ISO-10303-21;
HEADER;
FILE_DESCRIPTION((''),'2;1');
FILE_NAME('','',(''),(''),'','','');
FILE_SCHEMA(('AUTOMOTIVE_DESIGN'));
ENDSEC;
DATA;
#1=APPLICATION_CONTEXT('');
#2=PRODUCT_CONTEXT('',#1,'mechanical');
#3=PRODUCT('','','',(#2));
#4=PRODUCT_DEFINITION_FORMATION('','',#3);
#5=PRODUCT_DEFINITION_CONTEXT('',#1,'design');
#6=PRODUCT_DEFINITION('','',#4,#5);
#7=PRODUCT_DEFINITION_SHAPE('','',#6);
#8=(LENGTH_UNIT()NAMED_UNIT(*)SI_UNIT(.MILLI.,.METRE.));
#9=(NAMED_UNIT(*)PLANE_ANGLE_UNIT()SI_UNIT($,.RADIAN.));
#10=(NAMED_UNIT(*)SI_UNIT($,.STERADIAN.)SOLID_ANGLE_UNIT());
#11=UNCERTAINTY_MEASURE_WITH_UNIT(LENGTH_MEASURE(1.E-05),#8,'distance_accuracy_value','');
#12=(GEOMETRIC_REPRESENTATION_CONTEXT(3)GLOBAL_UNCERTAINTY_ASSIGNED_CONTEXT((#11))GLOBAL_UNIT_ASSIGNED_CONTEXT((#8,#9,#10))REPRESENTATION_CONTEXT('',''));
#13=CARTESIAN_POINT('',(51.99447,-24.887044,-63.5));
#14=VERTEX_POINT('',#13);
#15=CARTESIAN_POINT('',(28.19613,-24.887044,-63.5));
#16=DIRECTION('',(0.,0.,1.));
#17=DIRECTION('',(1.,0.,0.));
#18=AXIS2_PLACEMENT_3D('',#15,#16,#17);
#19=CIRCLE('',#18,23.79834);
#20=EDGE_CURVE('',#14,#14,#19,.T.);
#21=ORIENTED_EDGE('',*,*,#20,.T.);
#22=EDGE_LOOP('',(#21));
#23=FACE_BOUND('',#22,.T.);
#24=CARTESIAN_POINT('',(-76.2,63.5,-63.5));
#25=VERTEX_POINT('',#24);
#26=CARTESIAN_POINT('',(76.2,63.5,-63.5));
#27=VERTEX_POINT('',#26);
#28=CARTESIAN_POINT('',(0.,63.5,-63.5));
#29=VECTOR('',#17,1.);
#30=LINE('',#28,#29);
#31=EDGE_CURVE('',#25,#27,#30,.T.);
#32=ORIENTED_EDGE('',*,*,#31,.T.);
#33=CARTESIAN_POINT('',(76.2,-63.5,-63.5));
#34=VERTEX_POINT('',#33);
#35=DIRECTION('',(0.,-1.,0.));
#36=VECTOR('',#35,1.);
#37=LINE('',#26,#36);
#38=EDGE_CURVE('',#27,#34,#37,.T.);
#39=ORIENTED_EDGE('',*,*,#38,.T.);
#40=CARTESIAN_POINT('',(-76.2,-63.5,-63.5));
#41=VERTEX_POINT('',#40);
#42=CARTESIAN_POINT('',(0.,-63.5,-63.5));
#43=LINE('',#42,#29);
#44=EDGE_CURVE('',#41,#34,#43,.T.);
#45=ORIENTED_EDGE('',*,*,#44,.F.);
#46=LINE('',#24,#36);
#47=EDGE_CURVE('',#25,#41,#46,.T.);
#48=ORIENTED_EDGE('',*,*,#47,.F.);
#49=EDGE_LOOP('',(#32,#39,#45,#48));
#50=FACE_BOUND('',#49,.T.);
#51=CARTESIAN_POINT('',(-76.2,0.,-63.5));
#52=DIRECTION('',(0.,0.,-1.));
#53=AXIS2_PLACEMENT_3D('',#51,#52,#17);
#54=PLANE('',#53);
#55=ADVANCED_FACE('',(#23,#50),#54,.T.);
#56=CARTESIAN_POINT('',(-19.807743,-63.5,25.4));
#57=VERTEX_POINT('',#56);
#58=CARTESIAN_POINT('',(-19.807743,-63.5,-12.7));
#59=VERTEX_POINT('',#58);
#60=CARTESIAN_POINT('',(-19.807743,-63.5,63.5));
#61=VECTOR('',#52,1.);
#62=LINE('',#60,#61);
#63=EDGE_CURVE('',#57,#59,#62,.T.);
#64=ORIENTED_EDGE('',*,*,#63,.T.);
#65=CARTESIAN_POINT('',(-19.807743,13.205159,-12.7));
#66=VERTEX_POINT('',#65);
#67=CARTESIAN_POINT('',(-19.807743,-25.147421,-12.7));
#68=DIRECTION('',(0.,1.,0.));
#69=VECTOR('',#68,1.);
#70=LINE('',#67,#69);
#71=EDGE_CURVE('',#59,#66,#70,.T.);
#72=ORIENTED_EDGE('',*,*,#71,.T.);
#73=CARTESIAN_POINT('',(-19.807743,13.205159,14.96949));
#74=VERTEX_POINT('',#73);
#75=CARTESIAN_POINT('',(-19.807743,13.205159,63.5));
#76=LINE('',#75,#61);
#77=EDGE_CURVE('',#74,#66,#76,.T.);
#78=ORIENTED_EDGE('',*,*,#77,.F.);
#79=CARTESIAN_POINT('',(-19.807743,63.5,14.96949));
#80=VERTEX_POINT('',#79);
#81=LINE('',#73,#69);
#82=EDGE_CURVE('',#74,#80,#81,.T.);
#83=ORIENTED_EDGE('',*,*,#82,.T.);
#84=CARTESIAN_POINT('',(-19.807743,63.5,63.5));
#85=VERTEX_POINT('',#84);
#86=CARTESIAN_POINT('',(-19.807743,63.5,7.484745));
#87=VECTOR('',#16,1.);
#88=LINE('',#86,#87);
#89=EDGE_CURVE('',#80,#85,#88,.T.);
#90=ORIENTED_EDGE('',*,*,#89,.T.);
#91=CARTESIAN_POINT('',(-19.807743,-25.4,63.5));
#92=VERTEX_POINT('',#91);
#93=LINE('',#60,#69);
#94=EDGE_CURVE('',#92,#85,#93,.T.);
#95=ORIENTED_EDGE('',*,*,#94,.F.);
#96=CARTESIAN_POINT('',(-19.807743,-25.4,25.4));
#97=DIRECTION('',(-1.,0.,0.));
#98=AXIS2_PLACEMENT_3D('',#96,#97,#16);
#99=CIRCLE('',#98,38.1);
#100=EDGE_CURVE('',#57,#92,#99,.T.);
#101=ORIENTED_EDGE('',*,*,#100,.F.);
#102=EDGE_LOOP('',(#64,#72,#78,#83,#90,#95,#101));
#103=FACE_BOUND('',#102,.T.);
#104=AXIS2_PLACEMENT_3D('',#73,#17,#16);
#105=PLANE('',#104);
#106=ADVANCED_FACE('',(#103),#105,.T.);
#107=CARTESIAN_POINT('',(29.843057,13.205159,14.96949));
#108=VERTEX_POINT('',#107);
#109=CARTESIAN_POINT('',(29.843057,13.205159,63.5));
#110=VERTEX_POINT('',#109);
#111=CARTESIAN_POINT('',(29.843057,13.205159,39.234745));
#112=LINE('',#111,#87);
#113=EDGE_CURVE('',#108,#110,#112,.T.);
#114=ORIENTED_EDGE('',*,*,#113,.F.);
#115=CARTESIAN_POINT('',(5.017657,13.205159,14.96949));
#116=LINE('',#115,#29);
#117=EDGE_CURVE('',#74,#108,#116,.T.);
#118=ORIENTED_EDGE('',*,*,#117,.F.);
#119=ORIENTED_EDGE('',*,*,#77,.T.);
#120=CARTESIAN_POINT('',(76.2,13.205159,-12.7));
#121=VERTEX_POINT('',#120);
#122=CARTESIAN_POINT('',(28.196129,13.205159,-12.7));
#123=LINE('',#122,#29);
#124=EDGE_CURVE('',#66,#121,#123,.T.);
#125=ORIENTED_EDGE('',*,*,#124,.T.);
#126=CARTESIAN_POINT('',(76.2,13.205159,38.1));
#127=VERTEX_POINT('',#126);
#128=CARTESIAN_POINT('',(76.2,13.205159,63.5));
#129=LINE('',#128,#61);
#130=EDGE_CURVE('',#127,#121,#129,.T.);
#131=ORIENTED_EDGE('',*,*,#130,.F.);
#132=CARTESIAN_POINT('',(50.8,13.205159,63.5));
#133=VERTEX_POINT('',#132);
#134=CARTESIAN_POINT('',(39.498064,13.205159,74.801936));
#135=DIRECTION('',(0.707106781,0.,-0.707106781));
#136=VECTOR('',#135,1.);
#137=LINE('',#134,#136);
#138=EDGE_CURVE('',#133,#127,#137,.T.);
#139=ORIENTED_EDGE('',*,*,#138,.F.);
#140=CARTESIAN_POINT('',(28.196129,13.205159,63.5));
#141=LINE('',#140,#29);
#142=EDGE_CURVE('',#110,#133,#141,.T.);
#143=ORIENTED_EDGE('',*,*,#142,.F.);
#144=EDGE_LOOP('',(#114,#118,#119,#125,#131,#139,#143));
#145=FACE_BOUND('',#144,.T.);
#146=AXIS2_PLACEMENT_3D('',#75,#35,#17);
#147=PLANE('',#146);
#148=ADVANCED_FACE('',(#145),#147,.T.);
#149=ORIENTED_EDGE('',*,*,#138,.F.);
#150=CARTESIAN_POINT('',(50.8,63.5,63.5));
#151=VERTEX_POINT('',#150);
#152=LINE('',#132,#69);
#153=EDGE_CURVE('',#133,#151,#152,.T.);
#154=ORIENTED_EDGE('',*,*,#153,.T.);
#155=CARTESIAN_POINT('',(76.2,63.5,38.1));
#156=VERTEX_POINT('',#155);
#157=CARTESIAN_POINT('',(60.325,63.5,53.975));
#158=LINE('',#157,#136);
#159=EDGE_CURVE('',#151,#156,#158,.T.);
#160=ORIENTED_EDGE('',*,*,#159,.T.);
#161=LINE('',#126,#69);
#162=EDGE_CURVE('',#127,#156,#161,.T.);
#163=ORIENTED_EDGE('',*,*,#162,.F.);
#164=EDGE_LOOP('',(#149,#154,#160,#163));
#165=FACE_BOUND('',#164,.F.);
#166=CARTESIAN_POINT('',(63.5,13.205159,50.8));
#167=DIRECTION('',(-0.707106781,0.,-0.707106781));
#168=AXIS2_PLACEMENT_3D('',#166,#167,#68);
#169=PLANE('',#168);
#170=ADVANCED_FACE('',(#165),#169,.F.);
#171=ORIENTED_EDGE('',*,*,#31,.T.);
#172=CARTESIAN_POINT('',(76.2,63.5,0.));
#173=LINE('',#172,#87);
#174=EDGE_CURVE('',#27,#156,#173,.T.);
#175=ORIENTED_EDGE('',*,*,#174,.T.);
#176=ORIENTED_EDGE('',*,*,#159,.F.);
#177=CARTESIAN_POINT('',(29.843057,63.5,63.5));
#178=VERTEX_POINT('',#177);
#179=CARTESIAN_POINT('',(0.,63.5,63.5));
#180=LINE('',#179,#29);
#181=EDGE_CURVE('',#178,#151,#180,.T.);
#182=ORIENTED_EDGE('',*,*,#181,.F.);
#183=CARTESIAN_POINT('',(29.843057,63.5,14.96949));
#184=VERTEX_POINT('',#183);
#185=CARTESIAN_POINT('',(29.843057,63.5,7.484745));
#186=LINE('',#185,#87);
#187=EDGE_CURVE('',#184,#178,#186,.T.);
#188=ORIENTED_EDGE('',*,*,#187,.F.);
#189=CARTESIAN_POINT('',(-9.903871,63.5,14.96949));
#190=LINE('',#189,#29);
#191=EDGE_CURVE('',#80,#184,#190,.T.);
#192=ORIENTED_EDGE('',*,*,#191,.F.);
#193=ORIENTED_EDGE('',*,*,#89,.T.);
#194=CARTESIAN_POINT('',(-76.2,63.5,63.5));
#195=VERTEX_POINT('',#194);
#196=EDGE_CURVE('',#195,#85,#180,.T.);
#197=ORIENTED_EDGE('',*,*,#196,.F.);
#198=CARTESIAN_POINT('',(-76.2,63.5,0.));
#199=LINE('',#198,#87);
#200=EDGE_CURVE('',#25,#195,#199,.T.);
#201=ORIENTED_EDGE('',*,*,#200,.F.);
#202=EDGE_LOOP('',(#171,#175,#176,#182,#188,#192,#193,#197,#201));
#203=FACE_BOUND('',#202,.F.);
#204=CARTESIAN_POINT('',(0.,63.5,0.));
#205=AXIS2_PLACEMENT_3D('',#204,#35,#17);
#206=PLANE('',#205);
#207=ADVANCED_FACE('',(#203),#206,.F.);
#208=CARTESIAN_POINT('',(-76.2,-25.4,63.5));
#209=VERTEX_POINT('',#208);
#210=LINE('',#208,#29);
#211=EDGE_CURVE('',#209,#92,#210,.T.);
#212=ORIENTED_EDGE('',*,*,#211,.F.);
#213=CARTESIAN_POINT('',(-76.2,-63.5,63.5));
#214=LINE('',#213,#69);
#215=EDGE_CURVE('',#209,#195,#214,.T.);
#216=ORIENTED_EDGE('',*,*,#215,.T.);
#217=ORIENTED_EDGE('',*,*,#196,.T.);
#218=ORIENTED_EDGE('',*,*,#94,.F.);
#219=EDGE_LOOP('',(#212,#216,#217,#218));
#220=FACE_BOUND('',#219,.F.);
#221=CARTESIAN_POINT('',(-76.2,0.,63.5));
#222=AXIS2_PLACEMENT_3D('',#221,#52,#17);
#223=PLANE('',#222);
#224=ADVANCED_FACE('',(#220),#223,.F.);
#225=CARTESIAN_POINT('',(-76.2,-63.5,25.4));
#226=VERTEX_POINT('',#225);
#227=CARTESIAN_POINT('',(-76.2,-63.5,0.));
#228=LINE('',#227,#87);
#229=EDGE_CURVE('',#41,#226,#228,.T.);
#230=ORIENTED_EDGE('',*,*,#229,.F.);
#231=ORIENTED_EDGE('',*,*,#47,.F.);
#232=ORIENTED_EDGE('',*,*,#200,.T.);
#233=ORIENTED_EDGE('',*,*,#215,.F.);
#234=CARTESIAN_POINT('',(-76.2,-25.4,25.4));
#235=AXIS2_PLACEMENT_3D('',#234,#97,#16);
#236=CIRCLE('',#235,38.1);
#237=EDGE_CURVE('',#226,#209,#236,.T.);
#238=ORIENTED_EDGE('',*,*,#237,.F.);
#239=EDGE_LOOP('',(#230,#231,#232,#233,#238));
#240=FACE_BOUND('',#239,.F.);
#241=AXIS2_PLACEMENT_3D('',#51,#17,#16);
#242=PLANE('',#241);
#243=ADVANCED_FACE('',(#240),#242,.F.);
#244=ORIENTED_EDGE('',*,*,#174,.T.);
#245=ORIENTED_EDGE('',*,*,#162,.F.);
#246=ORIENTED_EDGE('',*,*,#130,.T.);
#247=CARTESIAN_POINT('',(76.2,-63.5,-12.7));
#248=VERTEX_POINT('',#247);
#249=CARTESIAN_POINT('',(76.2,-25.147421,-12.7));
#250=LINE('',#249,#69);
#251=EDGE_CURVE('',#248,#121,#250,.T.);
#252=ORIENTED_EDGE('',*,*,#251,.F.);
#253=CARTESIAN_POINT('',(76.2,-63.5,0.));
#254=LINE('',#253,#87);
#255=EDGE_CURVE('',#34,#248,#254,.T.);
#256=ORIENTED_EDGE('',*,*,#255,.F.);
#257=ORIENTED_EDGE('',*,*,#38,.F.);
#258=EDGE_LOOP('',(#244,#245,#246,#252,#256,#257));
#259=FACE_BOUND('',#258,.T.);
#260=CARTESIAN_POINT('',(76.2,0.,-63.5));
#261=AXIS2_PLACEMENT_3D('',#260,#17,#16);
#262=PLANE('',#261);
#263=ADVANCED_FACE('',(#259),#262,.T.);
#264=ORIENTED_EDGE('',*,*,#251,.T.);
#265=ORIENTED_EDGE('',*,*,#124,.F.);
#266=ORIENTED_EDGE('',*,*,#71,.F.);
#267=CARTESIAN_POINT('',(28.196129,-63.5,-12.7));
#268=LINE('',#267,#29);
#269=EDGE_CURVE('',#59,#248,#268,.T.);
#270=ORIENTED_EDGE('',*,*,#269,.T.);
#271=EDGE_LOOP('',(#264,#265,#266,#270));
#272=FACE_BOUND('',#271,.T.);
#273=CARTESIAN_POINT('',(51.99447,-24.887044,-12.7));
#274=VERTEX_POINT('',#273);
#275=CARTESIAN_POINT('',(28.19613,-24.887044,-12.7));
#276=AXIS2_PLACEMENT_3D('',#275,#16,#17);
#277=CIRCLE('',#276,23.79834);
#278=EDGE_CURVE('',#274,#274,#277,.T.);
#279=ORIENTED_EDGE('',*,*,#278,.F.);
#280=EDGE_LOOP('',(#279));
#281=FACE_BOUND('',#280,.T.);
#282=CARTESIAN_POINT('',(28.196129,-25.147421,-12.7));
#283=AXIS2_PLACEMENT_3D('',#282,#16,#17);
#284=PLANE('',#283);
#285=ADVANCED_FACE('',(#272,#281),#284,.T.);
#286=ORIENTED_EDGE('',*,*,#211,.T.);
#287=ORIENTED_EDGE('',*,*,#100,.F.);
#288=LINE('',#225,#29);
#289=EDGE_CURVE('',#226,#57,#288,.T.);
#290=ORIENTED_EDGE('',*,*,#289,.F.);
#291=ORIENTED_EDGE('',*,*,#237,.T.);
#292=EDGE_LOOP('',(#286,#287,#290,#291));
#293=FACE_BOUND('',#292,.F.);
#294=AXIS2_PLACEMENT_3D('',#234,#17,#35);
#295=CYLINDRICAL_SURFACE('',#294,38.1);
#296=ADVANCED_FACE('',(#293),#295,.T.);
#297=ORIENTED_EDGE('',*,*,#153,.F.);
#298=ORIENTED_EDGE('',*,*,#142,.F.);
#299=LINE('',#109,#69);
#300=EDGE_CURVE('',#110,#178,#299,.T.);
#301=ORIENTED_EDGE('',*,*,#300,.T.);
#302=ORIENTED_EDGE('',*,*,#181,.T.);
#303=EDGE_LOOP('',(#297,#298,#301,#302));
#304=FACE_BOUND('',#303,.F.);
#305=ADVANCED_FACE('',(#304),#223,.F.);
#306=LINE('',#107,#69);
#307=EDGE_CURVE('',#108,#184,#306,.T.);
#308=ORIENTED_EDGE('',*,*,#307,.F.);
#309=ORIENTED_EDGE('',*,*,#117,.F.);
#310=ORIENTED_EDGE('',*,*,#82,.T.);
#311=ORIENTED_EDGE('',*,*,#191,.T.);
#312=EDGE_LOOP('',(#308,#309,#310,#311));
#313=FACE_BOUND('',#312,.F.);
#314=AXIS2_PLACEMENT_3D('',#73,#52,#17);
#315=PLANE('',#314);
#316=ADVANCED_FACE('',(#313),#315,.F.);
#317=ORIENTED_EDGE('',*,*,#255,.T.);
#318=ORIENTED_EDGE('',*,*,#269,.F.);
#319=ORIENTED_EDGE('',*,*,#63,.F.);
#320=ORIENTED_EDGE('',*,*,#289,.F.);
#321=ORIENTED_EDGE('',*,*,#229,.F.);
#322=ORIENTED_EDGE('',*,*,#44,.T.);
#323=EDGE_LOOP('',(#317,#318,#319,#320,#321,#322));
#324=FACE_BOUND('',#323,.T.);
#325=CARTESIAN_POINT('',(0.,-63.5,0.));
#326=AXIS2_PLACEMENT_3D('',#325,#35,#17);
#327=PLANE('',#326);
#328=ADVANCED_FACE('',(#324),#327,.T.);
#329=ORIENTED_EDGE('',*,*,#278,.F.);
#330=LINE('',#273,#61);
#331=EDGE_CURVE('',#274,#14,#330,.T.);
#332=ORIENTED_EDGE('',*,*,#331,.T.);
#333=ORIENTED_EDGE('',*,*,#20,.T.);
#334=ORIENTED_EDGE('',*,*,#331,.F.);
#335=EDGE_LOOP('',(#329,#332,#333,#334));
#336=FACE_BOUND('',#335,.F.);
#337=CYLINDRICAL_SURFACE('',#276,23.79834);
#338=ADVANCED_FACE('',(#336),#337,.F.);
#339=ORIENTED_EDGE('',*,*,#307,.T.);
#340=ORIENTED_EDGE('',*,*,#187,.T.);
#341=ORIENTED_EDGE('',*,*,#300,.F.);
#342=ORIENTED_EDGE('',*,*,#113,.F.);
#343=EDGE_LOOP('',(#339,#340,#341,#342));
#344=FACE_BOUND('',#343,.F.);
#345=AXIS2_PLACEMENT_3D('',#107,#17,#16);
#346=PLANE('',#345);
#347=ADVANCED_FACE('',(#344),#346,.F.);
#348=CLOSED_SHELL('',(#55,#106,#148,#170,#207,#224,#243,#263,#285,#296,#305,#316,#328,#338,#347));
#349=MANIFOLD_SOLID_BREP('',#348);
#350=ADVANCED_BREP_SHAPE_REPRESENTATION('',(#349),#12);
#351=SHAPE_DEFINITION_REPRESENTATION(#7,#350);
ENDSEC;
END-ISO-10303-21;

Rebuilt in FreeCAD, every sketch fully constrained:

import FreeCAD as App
import Part
import Sketcher
Q = App.Units.Quantity


def edges_at(feature, points):
    """Names of the edges that pass closest to the given points."""
    edges = feature.Shape.Edges
    near = lambda p: min(range(len(edges)), key=lambda i: edges[i].distToShape(Part.Vertex(*p))[0])
    return sorted({f"Edge{near(p) + 1}" for p in points})

doc = App.newDocument("Part")
params = doc.addObject("Spreadsheet::Sheet", "Params")
for row, (alias, value) in enumerate([
    ("sketch1_width", "6 in"),
    ("sketch1_height", "5 in"),
    ("pad1_length", "5 in"),
    ("pocket1_length", "3 in"),
    ("pocket2_length", "2.96 in"),
    ("fillet_radius", "1.5 in"),
    ("chamfer_size", "1 in"),
    ("pocket3_length", "3.4 in"),
], start=1):
    params.set(f"A{row}", alias)
    params.set(f"B{row}", "=" + value)
    params.setAlias(f"B{row}", alias)

body = doc.addObject("PartDesign::Body", "Body")

# Sketch on XZ plane
sketch1 = body.newObject("Sketcher::SketchObject", "Sketch")
sketch1.AttachmentSupport = (doc.getObject("XZ_Plane"), [""])
sketch1.MapMode = "FlatFace"
sketch1.addGeometry(Part.LineSegment(App.Vector(-76, 64, 0), App.Vector(-76, -64, 0)), False)
sketch1.addGeometry(Part.LineSegment(App.Vector(-76, -64, 0), App.Vector(76, -64, 0)), False)
sketch1.addGeometry(Part.LineSegment(App.Vector(76, -64, 0), App.Vector(76, 64, 0)), False)
sketch1.addGeometry(Part.LineSegment(App.Vector(76, 64, 0), App.Vector(-76, 64, 0)), False)
sketch1.addConstraint(Sketcher.Constraint("Coincident", 0, 2, 1, 1))
sketch1.addConstraint(Sketcher.Constraint("Coincident", 1, 2, 2, 1))
sketch1.addConstraint(Sketcher.Constraint("Coincident", 2, 2, 3, 1))
sketch1.addConstraint(Sketcher.Constraint("Coincident", 3, 2, 0, 1))
sketch1.addConstraint(Sketcher.Constraint("Vertical", 0))
sketch1.addConstraint(Sketcher.Constraint("Horizontal", 1))
sketch1.addConstraint(Sketcher.Constraint("Vertical", 2))
sketch1.addConstraint(Sketcher.Constraint("Horizontal", 3))
sketch1.addConstraint(Sketcher.Constraint("Symmetric", 0, 2, 2, 2, -1, 1))
sketch1.addConstraint(Sketcher.Constraint("DistanceX", 1, 1, 1, 2, Q("6 in")))
sketch1.addConstraint(Sketcher.Constraint("DistanceY", 0, 2, 0, 1, Q("5 in")))
sketch1.setExpression("Constraints[9]", "Params.sketch1_width")
sketch1.setExpression("Constraints[10]", "Params.sketch1_height")
pad1 = body.newObject("PartDesign::Pad", "Pad")
pad1.Profile = sketch1
pad1.setExpression("Length", "Params.pad1_length")
pad1.Midplane = True

# Sketch on XY plane
sketch2 = body.newObject("Sketcher::SketchObject", "Sketch001")
sketch2.AttachmentSupport = (doc.getObject("XY_Plane"), [""])
sketch2.MapMode = "FlatFace"
sketch2.AttachmentOffset = App.Placement(App.Vector(0, 0, 2.5 * 25.4), App.Rotation())
sketch2.addGeometry(Part.LineSegment(App.Vector(-20, 13, 0), App.Vector(-20, -64, 0)), False)
sketch2.addGeometry(Part.LineSegment(App.Vector(-20, -64, 0), App.Vector(76, -64, 0)), False)
sketch2.addGeometry(Part.LineSegment(App.Vector(76, -64, 0), App.Vector(76, 13, 0)), False)
sketch2.addGeometry(Part.LineSegment(App.Vector(76, 13, 0), App.Vector(-20, 13, 0)), False)
sketch2.addConstraint(Sketcher.Constraint("Coincident", 0, 2, 1, 1))
sketch2.addConstraint(Sketcher.Constraint("Coincident", 1, 2, 2, 1))
sketch2.addConstraint(Sketcher.Constraint("Coincident", 2, 2, 3, 1))
sketch2.addConstraint(Sketcher.Constraint("Coincident", 3, 2, 0, 1))
sketch2.addConstraint(Sketcher.Constraint("Vertical", 0))
sketch2.addConstraint(Sketcher.Constraint("Horizontal", 1))
sketch2.addConstraint(Sketcher.Constraint("Vertical", 2))
sketch2.addConstraint(Sketcher.Constraint("Horizontal", 3))
sketch2.addConstraint(Sketcher.Constraint("DistanceX", -1, 1, 1, 2, Q("3 in")))
sketch2.addConstraint(Sketcher.Constraint("DistanceY", 0, 2, -1, 1, Q("2.5 in")))
sketch2.addConstraint(Sketcher.Constraint("DistanceY", 0, 2, 0, 1, 76.705159))
sketch2.addConstraint(Sketcher.Constraint("DistanceX", 1, 1, 1, 2, 96.007743))
pocket1 = body.newObject("PartDesign::Pocket", "Pocket")
pocket1.Profile = sketch2
pocket1.setExpression("Length", "Params.pocket1_length")

# Sketch on XZ plane
sketch3 = body.newObject("Sketcher::SketchObject", "Sketch002")
sketch3.AttachmentSupport = (doc.getObject("XZ_Plane"), [""])
sketch3.MapMode = "FlatFace"
sketch3.AttachmentOffset = App.Placement(App.Vector(0, 0, -13.205159), App.Rotation())
sketch3.addGeometry(Part.LineSegment(App.Vector(-20, 64, 0), App.Vector(-20, 15, 0)), False)
sketch3.addGeometry(Part.LineSegment(App.Vector(-20, 15, 0), App.Vector(30, 15, 0)), False)
sketch3.addGeometry(Part.LineSegment(App.Vector(30, 15, 0), App.Vector(30, 64, 0)), False)
sketch3.addGeometry(Part.LineSegment(App.Vector(30, 64, 0), App.Vector(-20, 64, 0)), False)
sketch3.addConstraint(Sketcher.Constraint("Coincident", 0, 2, 1, 1))
sketch3.addConstraint(Sketcher.Constraint("Coincident", 1, 2, 2, 1))
sketch3.addConstraint(Sketcher.Constraint("Coincident", 2, 2, 3, 1))
sketch3.addConstraint(Sketcher.Constraint("Coincident", 3, 2, 0, 1))
sketch3.addConstraint(Sketcher.Constraint("Vertical", 0))
sketch3.addConstraint(Sketcher.Constraint("Horizontal", 1))
sketch3.addConstraint(Sketcher.Constraint("Vertical", 2))
sketch3.addConstraint(Sketcher.Constraint("Horizontal", 3))
sketch3.addConstraint(Sketcher.Constraint("DistanceY", -1, 1, 2, 2, Q("2.5 in")))
sketch3.addConstraint(Sketcher.Constraint("DistanceX", 1, 1, 1, 2, 49.650799))
sketch3.addConstraint(Sketcher.Constraint("DistanceY", 0, 2, 0, 1, 48.53051))
sketch3.addConstraint(Sketcher.Constraint("DistanceX", 0, 2, -1, 1, 19.807743))
pocket2 = body.newObject("PartDesign::Pocket", "Pocket001")
pocket2.Profile = sketch3
pocket2.setExpression("Length", "Params.pocket2_length")
doc.recompute()

fillet = body.newObject("PartDesign::Fillet", "Fillet")
fillet.Base = (pocket2, edges_at(pocket2, [(-48.004, -63.5, 63.5)]))
fillet.setExpression("Radius", "Params.fillet_radius")
doc.recompute()

chamfer = body.newObject("PartDesign::Chamfer", "Chamfer")
chamfer.Base = (fillet, edges_at(fillet, [(76.2, 38.353, 63.5)]))
chamfer.setExpression("Size", "Params.chamfer_size")

# Sketch on XY plane
sketch4 = body.newObject("Sketcher::SketchObject", "Sketch003")
sketch4.AttachmentSupport = (doc.getObject("XY_Plane"), [""])
sketch4.MapMode = "FlatFace"
sketch4.AttachmentOffset = App.Placement(App.Vector(0, 0, -0.5 * 25.4), App.Rotation())
sketch4.addGeometry(Part.Circle(App.Vector(28, -25, 0), App.Vector(0, 0, 1), 24), False)
sketch4.addConstraint(Sketcher.Constraint("Diameter", 0, 47.59668))
sketch4.addConstraint(Sketcher.Constraint("DistanceX", -1, 1, 0, 3, 28.19613))
sketch4.addConstraint(Sketcher.Constraint("DistanceY", 0, 3, -1, 1, 24.887044))
pocket3 = body.newObject("PartDesign::Pocket", "Pocket002")
pocket3.Profile = sketch4
pocket3.setExpression("Length", "Params.pocket3_length")

doc.recompute()
